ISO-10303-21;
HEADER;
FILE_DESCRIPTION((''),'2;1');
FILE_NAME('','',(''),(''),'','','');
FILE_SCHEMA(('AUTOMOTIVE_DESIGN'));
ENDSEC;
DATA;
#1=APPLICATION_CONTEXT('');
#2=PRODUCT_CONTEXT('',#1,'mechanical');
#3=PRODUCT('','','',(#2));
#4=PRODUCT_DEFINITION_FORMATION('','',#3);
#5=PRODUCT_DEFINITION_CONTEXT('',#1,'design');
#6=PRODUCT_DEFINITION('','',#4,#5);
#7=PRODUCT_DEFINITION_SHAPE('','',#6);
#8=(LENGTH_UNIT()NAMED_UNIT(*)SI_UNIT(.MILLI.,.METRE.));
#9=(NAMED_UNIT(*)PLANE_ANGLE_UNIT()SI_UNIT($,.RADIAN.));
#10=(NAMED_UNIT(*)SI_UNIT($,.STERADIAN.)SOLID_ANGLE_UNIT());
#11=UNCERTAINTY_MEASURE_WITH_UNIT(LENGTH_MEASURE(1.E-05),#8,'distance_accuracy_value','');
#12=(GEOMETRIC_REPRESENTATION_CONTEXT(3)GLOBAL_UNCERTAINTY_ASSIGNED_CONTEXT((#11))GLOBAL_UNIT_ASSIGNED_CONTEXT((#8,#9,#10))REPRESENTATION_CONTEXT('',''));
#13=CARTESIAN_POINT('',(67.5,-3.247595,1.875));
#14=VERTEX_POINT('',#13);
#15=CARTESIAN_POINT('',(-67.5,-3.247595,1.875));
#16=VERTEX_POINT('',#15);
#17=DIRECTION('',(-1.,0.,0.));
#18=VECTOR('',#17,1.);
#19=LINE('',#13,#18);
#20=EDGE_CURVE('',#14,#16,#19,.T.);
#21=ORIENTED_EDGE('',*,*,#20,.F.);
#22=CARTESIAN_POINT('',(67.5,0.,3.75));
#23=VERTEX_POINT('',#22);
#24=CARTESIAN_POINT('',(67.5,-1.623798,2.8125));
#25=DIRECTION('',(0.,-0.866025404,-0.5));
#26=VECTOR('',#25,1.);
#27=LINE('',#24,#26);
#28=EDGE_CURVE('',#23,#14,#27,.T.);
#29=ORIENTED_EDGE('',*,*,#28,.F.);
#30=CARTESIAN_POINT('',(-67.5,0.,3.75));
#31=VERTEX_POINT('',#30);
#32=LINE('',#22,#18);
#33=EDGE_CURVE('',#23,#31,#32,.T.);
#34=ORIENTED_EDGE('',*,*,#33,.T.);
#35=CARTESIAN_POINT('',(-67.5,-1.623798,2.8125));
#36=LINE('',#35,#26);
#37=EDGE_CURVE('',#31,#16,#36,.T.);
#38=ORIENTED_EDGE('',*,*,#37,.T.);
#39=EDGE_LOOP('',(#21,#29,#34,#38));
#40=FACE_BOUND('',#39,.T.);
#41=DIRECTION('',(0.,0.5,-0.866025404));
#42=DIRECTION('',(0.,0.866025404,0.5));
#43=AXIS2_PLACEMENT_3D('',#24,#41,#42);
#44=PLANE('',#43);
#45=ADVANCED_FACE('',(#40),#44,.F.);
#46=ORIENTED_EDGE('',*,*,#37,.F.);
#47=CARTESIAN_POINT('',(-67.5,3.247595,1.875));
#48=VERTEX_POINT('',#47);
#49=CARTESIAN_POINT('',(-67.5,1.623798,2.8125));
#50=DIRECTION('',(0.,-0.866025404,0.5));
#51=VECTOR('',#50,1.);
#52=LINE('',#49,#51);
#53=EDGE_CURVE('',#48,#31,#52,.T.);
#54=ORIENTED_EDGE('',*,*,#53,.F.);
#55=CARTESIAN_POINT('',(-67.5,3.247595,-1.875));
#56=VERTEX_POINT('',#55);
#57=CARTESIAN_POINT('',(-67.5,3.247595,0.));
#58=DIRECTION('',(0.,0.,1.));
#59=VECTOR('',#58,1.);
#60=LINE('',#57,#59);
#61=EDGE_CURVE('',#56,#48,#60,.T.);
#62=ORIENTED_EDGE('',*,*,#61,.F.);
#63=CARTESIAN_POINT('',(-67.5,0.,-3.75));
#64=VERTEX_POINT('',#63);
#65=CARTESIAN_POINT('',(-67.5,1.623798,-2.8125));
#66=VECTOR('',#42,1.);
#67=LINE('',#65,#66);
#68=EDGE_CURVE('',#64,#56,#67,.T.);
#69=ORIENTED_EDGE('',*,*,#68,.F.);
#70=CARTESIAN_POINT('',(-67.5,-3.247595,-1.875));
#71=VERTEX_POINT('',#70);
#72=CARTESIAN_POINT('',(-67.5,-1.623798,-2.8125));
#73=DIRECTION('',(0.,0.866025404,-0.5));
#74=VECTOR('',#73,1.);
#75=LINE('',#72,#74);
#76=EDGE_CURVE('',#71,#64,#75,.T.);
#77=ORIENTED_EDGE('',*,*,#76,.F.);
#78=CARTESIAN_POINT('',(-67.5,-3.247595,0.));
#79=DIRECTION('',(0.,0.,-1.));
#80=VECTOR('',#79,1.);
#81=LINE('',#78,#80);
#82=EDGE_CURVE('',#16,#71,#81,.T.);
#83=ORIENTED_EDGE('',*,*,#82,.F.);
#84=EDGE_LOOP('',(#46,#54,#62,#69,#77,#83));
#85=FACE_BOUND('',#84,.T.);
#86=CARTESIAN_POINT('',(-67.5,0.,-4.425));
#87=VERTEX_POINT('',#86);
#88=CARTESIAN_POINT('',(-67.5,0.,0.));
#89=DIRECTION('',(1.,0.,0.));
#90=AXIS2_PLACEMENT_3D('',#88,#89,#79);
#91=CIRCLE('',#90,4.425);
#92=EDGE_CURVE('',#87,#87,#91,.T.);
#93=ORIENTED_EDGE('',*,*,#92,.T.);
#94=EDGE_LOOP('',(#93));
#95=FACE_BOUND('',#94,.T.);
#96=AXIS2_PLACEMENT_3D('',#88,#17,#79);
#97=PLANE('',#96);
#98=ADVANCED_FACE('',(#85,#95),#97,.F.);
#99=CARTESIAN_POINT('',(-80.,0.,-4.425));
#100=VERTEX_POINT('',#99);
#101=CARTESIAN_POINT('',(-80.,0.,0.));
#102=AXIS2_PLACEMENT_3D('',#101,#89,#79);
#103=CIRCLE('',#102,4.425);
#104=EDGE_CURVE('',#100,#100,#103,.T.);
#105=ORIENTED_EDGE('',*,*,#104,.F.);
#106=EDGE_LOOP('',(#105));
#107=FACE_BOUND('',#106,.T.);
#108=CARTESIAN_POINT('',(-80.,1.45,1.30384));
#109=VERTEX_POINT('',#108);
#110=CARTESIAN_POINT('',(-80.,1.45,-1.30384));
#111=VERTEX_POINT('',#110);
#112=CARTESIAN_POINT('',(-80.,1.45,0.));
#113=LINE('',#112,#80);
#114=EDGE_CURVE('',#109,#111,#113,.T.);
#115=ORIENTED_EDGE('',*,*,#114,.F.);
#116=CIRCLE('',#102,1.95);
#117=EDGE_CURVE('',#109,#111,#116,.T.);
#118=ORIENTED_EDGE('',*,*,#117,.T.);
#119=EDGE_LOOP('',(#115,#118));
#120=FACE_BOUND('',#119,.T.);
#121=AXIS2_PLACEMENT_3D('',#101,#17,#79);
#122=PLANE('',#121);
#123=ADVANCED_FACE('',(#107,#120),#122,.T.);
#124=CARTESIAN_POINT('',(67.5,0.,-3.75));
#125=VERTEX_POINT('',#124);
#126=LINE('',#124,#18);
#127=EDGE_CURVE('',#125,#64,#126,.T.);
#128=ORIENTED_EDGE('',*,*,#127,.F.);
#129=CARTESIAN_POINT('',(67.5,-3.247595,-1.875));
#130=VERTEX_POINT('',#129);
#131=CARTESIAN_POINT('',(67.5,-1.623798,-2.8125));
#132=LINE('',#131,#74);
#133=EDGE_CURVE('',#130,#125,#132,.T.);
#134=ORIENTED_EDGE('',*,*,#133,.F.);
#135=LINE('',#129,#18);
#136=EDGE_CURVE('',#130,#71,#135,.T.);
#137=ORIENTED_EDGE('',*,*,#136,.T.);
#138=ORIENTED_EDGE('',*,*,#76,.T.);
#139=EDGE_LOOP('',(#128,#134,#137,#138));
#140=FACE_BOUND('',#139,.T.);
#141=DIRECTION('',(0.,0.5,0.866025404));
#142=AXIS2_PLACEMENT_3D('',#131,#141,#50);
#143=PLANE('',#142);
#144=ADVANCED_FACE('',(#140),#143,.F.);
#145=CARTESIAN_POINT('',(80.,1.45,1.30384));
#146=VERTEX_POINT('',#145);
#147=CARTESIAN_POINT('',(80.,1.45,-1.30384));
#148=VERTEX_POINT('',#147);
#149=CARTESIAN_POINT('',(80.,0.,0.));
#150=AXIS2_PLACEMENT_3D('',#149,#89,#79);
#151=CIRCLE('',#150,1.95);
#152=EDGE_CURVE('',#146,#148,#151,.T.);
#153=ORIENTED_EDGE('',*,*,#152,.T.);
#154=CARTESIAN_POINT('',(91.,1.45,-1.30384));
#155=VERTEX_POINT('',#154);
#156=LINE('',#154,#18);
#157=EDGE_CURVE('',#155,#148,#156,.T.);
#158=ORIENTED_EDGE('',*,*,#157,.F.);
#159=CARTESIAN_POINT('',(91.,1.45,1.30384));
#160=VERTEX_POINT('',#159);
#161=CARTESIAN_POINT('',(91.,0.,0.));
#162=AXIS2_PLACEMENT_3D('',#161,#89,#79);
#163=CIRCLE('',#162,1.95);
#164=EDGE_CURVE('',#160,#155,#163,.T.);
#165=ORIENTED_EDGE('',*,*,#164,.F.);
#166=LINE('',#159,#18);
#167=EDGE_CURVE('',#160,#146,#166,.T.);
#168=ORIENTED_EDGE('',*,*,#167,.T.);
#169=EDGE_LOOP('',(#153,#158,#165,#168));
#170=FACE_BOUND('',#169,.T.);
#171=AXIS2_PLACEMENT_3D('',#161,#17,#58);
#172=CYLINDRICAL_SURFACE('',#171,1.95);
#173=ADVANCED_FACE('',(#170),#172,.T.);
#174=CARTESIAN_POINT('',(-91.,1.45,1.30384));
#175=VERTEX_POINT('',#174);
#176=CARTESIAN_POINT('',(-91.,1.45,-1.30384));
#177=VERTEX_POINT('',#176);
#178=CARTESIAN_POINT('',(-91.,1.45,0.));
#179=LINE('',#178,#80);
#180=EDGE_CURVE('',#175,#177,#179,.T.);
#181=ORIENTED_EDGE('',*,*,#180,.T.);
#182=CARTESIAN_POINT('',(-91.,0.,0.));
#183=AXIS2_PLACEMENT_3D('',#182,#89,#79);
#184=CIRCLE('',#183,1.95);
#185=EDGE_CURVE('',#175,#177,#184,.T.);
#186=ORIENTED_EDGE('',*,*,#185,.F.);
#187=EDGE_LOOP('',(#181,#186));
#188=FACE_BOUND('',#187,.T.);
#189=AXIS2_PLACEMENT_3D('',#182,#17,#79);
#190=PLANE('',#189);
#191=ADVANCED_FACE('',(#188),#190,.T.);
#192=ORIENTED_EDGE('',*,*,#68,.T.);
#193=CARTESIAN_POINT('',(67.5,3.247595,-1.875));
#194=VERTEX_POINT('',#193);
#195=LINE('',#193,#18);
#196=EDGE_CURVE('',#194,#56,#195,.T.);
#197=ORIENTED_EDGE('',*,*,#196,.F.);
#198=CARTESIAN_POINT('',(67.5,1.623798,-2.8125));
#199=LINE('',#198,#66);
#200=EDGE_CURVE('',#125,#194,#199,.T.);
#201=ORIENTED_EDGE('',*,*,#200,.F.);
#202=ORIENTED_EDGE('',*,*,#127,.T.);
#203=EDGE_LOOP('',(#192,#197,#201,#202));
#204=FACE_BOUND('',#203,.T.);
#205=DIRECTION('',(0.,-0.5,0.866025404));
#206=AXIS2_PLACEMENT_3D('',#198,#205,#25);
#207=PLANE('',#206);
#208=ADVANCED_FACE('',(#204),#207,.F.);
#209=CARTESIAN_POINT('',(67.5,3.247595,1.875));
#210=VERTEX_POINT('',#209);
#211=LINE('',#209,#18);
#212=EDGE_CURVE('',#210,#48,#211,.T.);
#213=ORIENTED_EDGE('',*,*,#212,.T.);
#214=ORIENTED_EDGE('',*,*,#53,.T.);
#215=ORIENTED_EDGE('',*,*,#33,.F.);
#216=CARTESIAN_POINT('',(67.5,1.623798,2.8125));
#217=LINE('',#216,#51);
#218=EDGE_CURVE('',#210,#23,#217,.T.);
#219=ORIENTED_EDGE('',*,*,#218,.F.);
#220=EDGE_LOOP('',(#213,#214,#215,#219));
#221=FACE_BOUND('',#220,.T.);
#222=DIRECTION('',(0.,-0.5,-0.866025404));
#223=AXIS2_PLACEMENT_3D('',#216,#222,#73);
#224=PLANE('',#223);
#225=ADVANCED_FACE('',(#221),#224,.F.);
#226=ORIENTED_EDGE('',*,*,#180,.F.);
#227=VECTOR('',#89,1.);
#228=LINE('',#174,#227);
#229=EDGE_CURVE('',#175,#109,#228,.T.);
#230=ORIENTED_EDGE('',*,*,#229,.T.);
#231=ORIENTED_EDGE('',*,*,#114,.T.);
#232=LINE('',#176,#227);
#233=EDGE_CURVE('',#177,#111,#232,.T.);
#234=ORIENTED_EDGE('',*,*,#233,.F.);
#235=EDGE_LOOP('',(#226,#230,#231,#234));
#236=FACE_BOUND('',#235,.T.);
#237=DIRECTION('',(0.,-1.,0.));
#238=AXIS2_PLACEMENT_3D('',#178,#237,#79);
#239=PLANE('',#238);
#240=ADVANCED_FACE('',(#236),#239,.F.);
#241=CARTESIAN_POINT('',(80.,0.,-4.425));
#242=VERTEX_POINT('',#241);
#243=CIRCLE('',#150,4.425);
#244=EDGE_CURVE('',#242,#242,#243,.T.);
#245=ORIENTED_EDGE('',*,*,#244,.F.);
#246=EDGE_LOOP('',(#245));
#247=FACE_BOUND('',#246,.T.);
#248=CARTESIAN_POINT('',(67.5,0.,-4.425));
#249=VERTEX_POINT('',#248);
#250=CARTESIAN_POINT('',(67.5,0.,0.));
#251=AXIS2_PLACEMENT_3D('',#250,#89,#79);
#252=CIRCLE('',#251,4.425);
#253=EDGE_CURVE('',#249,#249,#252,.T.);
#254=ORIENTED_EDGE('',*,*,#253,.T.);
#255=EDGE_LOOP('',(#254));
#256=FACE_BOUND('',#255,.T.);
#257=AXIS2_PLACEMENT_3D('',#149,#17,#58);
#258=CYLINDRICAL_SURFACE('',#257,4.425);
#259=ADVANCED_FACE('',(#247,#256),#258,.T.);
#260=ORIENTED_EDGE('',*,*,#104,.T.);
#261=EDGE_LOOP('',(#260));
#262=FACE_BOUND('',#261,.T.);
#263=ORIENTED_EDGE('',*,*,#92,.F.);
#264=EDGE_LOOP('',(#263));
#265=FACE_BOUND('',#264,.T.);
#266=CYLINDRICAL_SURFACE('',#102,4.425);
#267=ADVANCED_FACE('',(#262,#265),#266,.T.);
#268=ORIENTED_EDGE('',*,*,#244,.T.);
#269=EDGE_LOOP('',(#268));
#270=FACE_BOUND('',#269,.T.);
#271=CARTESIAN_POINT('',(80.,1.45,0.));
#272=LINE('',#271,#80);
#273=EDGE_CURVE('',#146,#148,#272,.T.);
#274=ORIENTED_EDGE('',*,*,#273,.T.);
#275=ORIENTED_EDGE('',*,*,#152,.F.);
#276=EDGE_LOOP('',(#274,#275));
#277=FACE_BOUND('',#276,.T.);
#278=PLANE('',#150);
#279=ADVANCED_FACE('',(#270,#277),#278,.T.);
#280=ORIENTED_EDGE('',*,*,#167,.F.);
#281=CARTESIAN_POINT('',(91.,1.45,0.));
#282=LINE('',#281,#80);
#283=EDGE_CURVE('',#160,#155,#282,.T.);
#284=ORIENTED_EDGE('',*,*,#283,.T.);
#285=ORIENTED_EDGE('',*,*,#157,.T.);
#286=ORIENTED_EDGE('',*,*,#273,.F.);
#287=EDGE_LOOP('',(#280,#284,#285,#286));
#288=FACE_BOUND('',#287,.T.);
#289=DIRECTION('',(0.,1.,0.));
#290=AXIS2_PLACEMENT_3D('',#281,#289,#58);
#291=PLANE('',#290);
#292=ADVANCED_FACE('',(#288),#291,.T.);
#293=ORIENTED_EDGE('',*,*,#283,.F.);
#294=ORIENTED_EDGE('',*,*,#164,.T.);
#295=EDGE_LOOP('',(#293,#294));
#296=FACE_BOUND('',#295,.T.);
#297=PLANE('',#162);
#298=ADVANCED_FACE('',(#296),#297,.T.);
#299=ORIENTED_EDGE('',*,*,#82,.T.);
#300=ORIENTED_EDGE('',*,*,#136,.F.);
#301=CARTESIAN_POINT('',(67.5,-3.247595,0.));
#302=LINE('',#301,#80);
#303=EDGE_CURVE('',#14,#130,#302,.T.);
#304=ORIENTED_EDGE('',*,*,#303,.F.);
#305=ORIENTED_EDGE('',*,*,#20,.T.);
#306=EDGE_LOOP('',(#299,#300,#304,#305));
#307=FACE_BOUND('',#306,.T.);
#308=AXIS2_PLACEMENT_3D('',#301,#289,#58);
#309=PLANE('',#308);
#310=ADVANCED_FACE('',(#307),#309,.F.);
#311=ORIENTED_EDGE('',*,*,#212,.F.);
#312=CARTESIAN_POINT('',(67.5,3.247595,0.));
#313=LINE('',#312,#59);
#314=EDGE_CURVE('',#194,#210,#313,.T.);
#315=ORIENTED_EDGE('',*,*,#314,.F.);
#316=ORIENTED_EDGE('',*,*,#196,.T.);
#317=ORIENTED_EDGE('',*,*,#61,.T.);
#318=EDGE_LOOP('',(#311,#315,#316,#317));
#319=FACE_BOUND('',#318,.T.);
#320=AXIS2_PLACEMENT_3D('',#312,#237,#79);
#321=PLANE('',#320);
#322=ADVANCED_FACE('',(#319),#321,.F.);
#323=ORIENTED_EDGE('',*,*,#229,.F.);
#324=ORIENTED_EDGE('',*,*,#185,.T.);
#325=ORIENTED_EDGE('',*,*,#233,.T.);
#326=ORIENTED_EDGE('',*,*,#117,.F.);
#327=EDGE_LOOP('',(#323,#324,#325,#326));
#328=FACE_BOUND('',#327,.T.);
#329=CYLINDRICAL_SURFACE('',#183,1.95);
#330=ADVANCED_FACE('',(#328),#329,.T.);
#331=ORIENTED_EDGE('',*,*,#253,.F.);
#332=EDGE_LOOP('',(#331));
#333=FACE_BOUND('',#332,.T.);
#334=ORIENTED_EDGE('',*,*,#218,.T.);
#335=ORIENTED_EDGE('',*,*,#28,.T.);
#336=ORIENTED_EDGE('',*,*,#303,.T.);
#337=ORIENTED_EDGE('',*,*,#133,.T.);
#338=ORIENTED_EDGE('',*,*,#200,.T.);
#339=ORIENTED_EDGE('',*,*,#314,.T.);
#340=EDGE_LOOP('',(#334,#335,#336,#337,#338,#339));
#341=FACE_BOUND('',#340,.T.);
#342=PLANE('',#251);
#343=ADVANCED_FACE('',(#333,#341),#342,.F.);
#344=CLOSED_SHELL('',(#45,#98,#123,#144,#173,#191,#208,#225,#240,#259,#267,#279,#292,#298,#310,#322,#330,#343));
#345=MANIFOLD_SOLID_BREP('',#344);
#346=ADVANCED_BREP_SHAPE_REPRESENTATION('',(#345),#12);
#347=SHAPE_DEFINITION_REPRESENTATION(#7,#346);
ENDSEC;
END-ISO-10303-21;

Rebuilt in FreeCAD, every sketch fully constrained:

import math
import FreeCAD as App
import Part
import Sketcher

V = App.Vector
Q = App.Units.Quantity

doc = App.newDocument("Part")
params = doc.addObject("Spreadsheet::Sheet", "Params")
for row, (alias, value) in enumerate([
    ("sketch1_height", "3.75 mm"),
    ("pad1_length", "135 mm"),
    ("sketch2_diameter", "8.85 mm"),
    ("pad2_length", "12.5 mm"),
    ("sketch3_radius", "1.95 mm"),
    ("pad3_length", "11 mm"),
], start=1):
    params.set(f"A{row}", alias)
    params.set(f"B{row}", "=" + value)
    params.setAlias(f"B{row}", alias)

body = doc.addObject("PartDesign::Body", "Body")

# Sketch on YZ plane
sketch1 = doc.addObject("Sketcher::SketchObject", "Sketch")
body.addObject(sketch1)
sketch1.AttachmentSupport = (doc.YZ_Plane, [""])
sketch1.MapMode = "FlatFace"
sketch1.addGeometry([
    Part.LineSegment(V(0, -3.8, 0), V(3.2, -1.9, 0)),  # 0
    Part.LineSegment(V(3.2, -1.9, 0), V(3.2, 1.9, 0)),  # 1
    Part.LineSegment(V(3.2, 1.9, 0), V(0, 3.8, 0)),  # 2
    Part.LineSegment(V(0, 3.8, 0), V(-3.2, 1.9, 0)),  # 3
    Part.LineSegment(V(-3.2, 1.9, 0), V(-3.2, -1.9, 0)),  # 4
    Part.LineSegment(V(-3.2, -1.9, 0), V(0, -3.8, 0)),  # 5
], False)
sketch1.addConstraint([
    Sketcher.Constraint("Coincident", 0, 2, 1, 1),
    Sketcher.Constraint("Coincident", 1, 2, 2, 1),
    Sketcher.Constraint("Coincident", 2, 2, 3, 1),
    Sketcher.Constraint("Coincident", 3, 2, 4, 1),
    Sketcher.Constraint("Coincident", 4, 2, 5, 1),
    Sketcher.Constraint("Coincident", 5, 2, 0, 1),
    Sketcher.Constraint("Vertical", 1),
    Sketcher.Constraint("Vertical", 4),
    Sketcher.Constraint("Symmetric", 0, 2, 3, 2, -1, 1),
    Sketcher.Constraint("Symmetric", 2, 2, 5, 2, -1, 1),
    Sketcher.Constraint("PointOnObject", 2, 2, -2),
    Sketcher.Constraint("Parallel", 2, 5),
    Sketcher.Constraint("Horizontal", 1, 2, 3, 2),
    Sketcher.Constraint("Angle", 0, Q("30 deg")),
    Sketcher.Constraint("DistanceY", 1, 1, 1, 2, 3.75),
    Sketcher.Constraint("DistanceY", 5, 2, 2, 2, 7.5),
])
sketch1.setExpression("Constraints[14]", "Params.sketch1_height")
pad1 = doc.addObject("PartDesign::Pad", "Pad")
body.addObject(pad1)
pad1.Profile = sketch1
pad1.setExpression("Length", "Params.pad1_length")
pad1.Midplane = True

# Sketch on YZ plane
sketch2 = doc.addObject("Sketcher::SketchObject", "Sketch001")
body.addObject(sketch2)
sketch2.AttachmentSupport = (doc.YZ_Plane, [""])
sketch2.MapMode = "FlatFace"
sketch2.AttachmentOffset = App.Placement(V(0, 0, 67.5), App.Rotation())
sketch2.addGeometry(Part.Circle(V(0, 0, 0), V(0, 0, 1), 4.4), False)
sketch2.addConstraint([
    Sketcher.Constraint("Coincident", 0, 3, -1, 1),
    Sketcher.Constraint("Diameter", 0, 8.85),
])
sketch2.setExpression("Constraints[1]", "Params.sketch2_diameter")
pad2 = doc.addObject("PartDesign::Pad", "Pad001")
body.addObject(pad2)
pad2.Profile = sketch2
pad2.setExpression("Length", "Params.pad2_length")

# Sketch on YZ plane
sketch3 = doc.addObject("Sketcher::SketchObject", "Sketch002")
body.addObject(sketch3)
sketch3.AttachmentSupport = (doc.YZ_Plane, [""])
sketch3.MapMode = "FlatFace"
sketch3.AttachmentOffset = App.Placement(V(0, 0, 80), App.Rotation())
sketch3.addGeometry([
    Part.LineSegment(V(1.4, -1.3, 0), V(1.4, 1.3, 0)),
    Part.ArcOfCircle(Part.Circle(V(0, 0, 0), V(0, 0, 1), 1.9), math.radians(42), math.radians(270)),
    Part.ArcOfCircle(Part.Circle(V(0, 0, 0), V(0, 0, 1), 2), math.radians(-90), math.radians(-42)),
], False)
sketch3.addConstraint([
    Sketcher.Constraint("Coincident", 0, 2, 1, 1),
    Sketcher.Constraint("Tangent", 1, 2, 2, 1),
    Sketcher.Constraint("Coincident", 2, 2, 0, 1),
    Sketcher.Constraint("Vertical", 0),
    Sketcher.Constraint("Coincident", 1, 3, -1, 1),
    Sketcher.Constraint("Equal", 1, 2),
    Sketcher.Constraint("PointOnObject", 1, 2, -2),
    Sketcher.Constraint("Radius", 1, 1.95),
    Sketcher.Constraint("DistanceX", -1, 1, 0, 2, 1.45),
])
sketch3.setExpression("Constraints[7]", "Params.sketch3_radius")
pad3 = doc.addObject("PartDesign::Pad", "Pad002")
body.addObject(pad3)
pad3.Profile = sketch3
pad3.setExpression("Length", "Params.pad3_length")
doc.recompute()

mirrored = doc.addObject("PartDesign::Mirrored", "Mirrored")
body.addObject(mirrored)
mirrored.Originals = [pad2, pad3]
mirrored.MirrorPlane = (doc.YZ_Plane, [""])
body.Tip = mirrored

doc.recompute()
